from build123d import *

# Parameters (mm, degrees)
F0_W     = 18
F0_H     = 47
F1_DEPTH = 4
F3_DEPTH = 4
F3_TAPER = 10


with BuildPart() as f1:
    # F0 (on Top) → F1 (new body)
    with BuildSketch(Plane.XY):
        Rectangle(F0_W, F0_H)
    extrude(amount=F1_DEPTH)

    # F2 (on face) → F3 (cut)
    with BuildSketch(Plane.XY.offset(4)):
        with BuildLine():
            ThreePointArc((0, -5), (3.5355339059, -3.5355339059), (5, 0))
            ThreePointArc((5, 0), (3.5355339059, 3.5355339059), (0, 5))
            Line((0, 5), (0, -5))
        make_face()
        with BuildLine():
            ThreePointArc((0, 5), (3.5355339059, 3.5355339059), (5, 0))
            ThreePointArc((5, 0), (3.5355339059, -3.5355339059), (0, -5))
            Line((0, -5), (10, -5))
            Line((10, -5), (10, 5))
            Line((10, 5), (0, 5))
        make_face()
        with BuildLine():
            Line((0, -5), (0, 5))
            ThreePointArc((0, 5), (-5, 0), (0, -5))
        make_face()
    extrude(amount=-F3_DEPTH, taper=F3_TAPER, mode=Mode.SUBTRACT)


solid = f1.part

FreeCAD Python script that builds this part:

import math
import FreeCAD as App
import Part
import Sketcher
Q = App.Units.Quantity

doc = App.newDocument("Part")
body = doc.addObject("PartDesign::Body", "Body")

sketch1 = body.newObject("Sketcher::SketchObject", "Sketch")
sketch1.AttachmentSupport = (doc.getObject("XY_Plane"), [""])
sketch1.MapMode = "FlatFace"
sketch1.addGeometry(Part.LineSegment(App.Vector(-9, 24, 0), App.Vector(-9, -24, 0)), False)
sketch1.addGeometry(Part.LineSegment(App.Vector(-9, -24, 0), App.Vector(9, -24, 0)), False)
sketch1.addGeometry(Part.LineSegment(App.Vector(9, -24, 0), App.Vector(9, 24, 0)), False)
sketch1.addGeometry(Part.LineSegment(App.Vector(9, 24, 0), App.Vector(-9, 24, 0)), False)
sketch1.addConstraint(Sketcher.Constraint("Coincident", 0, 2, 1, 1))
sketch1.addConstraint(Sketcher.Constraint("Coincident", 1, 2, 2, 1))
sketch1.addConstraint(Sketcher.Constraint("Coincident", 2, 2, 3, 1))
sketch1.addConstraint(Sketcher.Constraint("Coincident", 3, 2, 0, 1))
sketch1.addConstraint(Sketcher.Constraint("Vertical", 0))
sketch1.addConstraint(Sketcher.Constraint("Horizontal", 1))
sketch1.addConstraint(Sketcher.Constraint("Vertical", 2))
sketch1.addConstraint(Sketcher.Constraint("Horizontal", 3))
sketch1.addConstraint(Sketcher.Constraint("Symmetric", 0, 2, 2, 2, -1, 1))
sketch1.addConstraint(Sketcher.Constraint("DistanceX", 1, 1, 1, 2, Q("18 mm")))
sketch1.addConstraint(Sketcher.Constraint("DistanceY", 0, 2, 0, 1, Q("47 mm")))
pad1 = body.newObject("PartDesign::Pad", "Pad")
pad1.Profile = sketch1
pad1.Length = 4

sketch2 = body.newObject("Sketcher::SketchObject", "Sketch001")
sketch2.AttachmentSupport = (doc.getObject("XY_Plane"), [""])
sketch2.MapMode = "FlatFace"
sketch2.AttachmentOffset = App.Placement(App.Vector(0, 0, 4), App.Rotation())
sketch2.addGeometry(Part.LineSegment(App.Vector(0, -5, 0), App.Vector(10, -5, 0)), False)
sketch2.addGeometry(Part.LineSegment(App.Vector(10, -5, 0), App.Vector(10, 5, 0)), False)
sketch2.addGeometry(Part.LineSegment(App.Vector(10, 5, 0), App.Vector(0, 5, 0)), False)
sketch2.addGeometry(Part.ArcOfCircle(Part.Circle(App.Vector(0, 0, 0), App.Vector(0, 0, 1), 5), math.radians(90), math.radians(270)), False)
sketch2.addConstraint(Sketcher.Constraint("Coincident", 0, 2, 1, 1))
sketch2.addConstraint(Sketcher.Constraint("Coincident", 1, 2, 2, 1))
sketch2.addConstraint(Sketcher.Constraint("Tangent", 2, 2, 3, 1))
sketch2.addConstraint(Sketcher.Constraint("Tangent", 3, 2, 0, 1))
sketch2.addConstraint(Sketcher.Constraint("Horizontal", 0))
sketch2.addConstraint(Sketcher.Constraint("Vertical", 1))
sketch2.addConstraint(Sketcher.Constraint("Horizontal", 2))
sketch2.addConstraint(Sketcher.Constraint("Coincident", 3, 3, -1, 1))
sketch2.addConstraint(Sketcher.Constraint("Equal", 2, 1))
sketch2.addConstraint(Sketcher.Constraint("Radius", 3, Q("5 mm")))
pocket1 = body.newObject("PartDesign::Pocket", "Pocket")
pocket1.Profile = sketch2
pocket1.Length = 4
pocket1.TaperAngle = -10

doc.recompute()
